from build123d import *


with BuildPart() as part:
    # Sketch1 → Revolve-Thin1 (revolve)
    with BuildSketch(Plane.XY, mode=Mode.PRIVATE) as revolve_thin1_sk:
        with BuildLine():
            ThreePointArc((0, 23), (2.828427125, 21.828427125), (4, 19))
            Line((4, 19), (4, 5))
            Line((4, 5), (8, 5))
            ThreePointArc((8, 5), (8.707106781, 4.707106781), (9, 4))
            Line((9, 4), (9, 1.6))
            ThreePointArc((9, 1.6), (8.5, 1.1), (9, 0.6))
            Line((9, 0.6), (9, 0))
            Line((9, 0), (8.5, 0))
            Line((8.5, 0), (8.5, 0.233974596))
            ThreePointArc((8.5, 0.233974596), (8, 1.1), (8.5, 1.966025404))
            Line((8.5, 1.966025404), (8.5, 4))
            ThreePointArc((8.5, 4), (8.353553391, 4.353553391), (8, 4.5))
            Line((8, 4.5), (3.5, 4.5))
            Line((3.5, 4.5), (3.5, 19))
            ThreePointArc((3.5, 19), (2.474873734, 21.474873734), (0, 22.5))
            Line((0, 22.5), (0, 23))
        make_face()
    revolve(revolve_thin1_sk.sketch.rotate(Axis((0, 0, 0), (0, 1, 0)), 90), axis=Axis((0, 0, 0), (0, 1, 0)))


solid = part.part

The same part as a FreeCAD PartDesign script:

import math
import FreeCAD as App
import Part
import Sketcher
from FreeCAD import Vector
Q = App.Units.Quantity

doc = App.newDocument("Part")
params = doc.addObject("Spreadsheet::Sheet", "Params")
for row, (alias, value) in enumerate([
    ("sketch1_radius", "4 mm"),
    ("sketch1_radius2", "1 mm"),
    ("sketch1_radius3", "3.5 mm"),
    ("sketch1_width", "4 mm"),
    ("sketch1_height", "14 mm"),
    ("revolution_angle", "360 deg"),
], start=1):
    params.set(f"A{row}", alias)
    params.set(f"B{row}", "=" + value)
    params.setAlias(f"B{row}", alias)

body = doc.addObject("PartDesign::Body", "Body")

# Sketch on XY plane
sketch1 = body.newObject("Sketcher::SketchObject", "Sketch")
sketch1.AttachmentSupport = (doc.getObject("XY_Plane"), [""])
sketch1.MapMode = "FlatFace"
sketch1.addGeometry([
    Part.ArcOfCircle(Part.Circle(Vector(0, 19, 0), Vector(0, 0, 1), 4), math.radians(0), math.radians(90)),  # 0
    Part.LineSegment(Vector(0, 23, 0), Vector(0, 22.5, 0)),  # 1
    Part.ArcOfCircle(Part.Circle(Vector(0, 19, 0), Vector(0, 0, 1), 3.5), math.radians(0), math.radians(90)),  # 2
    Part.LineSegment(Vector(3.5, 19, 0), Vector(3.5, 4.5, 0)),  # 3
    Part.LineSegment(Vector(3.5, 4.5, 0), Vector(8, 4.5, 0)),  # 4
    Part.ArcOfCircle(Part.Circle(Vector(8, 4, 0), Vector(0, 0, 1), 0.5), math.radians(0), math.radians(90)),  # 5
    Part.LineSegment(Vector(8.5, 4, 0), Vector(8.5, 1.97, 0)),  # 6
    Part.ArcOfCircle(Part.Circle(Vector(9, 1.1, 0), Vector(0, 0, 1), 1), math.radians(120), math.radians(240)),  # 7
    Part.LineSegment(Vector(8.5, 0.23, 0), Vector(8.5, 0, 0)),  # 8
    Part.LineSegment(Vector(8.5, 0, 0), Vector(9, 0, 0)),  # 9
    Part.LineSegment(Vector(9, 0, 0), Vector(9, 0.6, 0)),  # 10
    Part.ArcOfCircle(Part.Circle(Vector(9, 1.1, 0), Vector(0, 0, 1), 0.5), math.radians(90), math.radians(270)),  # 11
    Part.LineSegment(Vector(9, 1.6, 0), Vector(9, 4, 0)),  # 12
    Part.ArcOfCircle(Part.Circle(Vector(8, 4, 0), Vector(0, 0, 1), 1), math.radians(0), math.radians(90)),  # 13
    Part.LineSegment(Vector(8, 5, 0), Vector(4, 5, 0)),  # 14
    Part.LineSegment(Vector(4, 5, 0), Vector(4, 19, 0)),  # 15
], False)
sketch1.addConstraint([
    Sketcher.Constraint("Coincident", 0, 2, 1, 1),
    Sketcher.Constraint("Coincident", 1, 2, 2, 2),
    Sketcher.Constraint("Tangent", 2, 1, 3, 1),
    Sketcher.Constraint("Coincident", 3, 2, 4, 1),
    Sketcher.Constraint("Tangent", 4, 2, 5, 2),
    Sketcher.Constraint("Tangent", 5, 1, 6, 1),
    Sketcher.Constraint("Coincident", 6, 2, 7, 1),
    Sketcher.Constraint("Coincident", 7, 2, 8, 1),
    Sketcher.Constraint("Coincident", 8, 2, 9, 1),
    Sketcher.Constraint("Coincident", 9, 2, 10, 1),
    Sketcher.Constraint("Coincident", 10, 2, 11, 2),
    Sketcher.Constraint("Coincident", 11, 1, 12, 1),
    Sketcher.Constraint("Tangent", 12, 2, 13, 1),
    Sketcher.Constraint("Tangent", 13, 2, 14, 1),
    Sketcher.Constraint("Coincident", 14, 2, 15, 1),
    Sketcher.Constraint("Tangent", 15, 2, 0, 1),
    Sketcher.Constraint("Vertical", 1),
    Sketcher.Constraint("Vertical", 3),
    Sketcher.Constraint("Horizontal", 4),
    Sketcher.Constraint("Vertical", 6),
    Sketcher.Constraint("Vertical", 8),
    Sketcher.Constraint("Horizontal", 9),
    Sketcher.Constraint("Vertical", 10),
    Sketcher.Constraint("Vertical", 12),
    Sketcher.Constraint("Horizontal", 14),
    Sketcher.Constraint("Vertical", 15),
    Sketcher.Constraint("Coincident", 2, 3, 0, 3),
    Sketcher.Constraint("Coincident", 11, 3, 7, 3),
    Sketcher.Constraint("Coincident", 13, 3, 5, 3),
    Sketcher.Constraint("Equal", 5, 11),
    Sketcher.Constraint("Equal", 7, 13),
    Sketcher.Constraint("PointOnObject", 0, 3, -2),
    Sketcher.Constraint("PointOnObject", 0, 2, -2),
    Sketcher.Constraint("PointOnObject", 8, 2, -1),
    Sketcher.Constraint("Vertical", 6, 2, 7, 2),
    Sketcher.Constraint("Vertical", 11, 3, 9, 2),
    Sketcher.Constraint("Vertical", 10, 2, 11, 1),
    Sketcher.Constraint("Equal", 9, 1),
    Sketcher.Constraint("Radius", 0, Q("4 mm")),
    Sketcher.Constraint("Radius", 7, Q("1 mm")),
    Sketcher.Constraint("Radius", 2, Q("3.5 mm")),
    Sketcher.Constraint("DistanceX", 14, 2, 14, 1, Q("4 mm")),
    Sketcher.Constraint("DistanceY", 15, 1, 15, 2, Q("14 mm")),
    Sketcher.Constraint("DistanceY", 10, 1, 10, 2, Q("0.6 mm")),
    Sketcher.Constraint("DistanceY", 12, 1, 12, 2, Q("2.4 mm")),
])
sketch1.setExpression("Constraints[38]", "Params.sketch1_radius")
sketch1.setExpression("Constraints[39]", "Params.sketch1_radius2")
sketch1.setExpression("Constraints[40]", "Params.sketch1_radius3")
sketch1.setExpression("Constraints[41]", "Params.sketch1_width")
sketch1.setExpression("Constraints[42]", "Params.sketch1_height")
revolution = body.newObject("PartDesign::Revolution", "Revolution")
revolution.Profile = sketch1
revolution.ReferenceAxis = (sketch1, ["V_Axis"])
revolution.setExpression("Angle", "Params.revolution_angle")

doc.recompute()
